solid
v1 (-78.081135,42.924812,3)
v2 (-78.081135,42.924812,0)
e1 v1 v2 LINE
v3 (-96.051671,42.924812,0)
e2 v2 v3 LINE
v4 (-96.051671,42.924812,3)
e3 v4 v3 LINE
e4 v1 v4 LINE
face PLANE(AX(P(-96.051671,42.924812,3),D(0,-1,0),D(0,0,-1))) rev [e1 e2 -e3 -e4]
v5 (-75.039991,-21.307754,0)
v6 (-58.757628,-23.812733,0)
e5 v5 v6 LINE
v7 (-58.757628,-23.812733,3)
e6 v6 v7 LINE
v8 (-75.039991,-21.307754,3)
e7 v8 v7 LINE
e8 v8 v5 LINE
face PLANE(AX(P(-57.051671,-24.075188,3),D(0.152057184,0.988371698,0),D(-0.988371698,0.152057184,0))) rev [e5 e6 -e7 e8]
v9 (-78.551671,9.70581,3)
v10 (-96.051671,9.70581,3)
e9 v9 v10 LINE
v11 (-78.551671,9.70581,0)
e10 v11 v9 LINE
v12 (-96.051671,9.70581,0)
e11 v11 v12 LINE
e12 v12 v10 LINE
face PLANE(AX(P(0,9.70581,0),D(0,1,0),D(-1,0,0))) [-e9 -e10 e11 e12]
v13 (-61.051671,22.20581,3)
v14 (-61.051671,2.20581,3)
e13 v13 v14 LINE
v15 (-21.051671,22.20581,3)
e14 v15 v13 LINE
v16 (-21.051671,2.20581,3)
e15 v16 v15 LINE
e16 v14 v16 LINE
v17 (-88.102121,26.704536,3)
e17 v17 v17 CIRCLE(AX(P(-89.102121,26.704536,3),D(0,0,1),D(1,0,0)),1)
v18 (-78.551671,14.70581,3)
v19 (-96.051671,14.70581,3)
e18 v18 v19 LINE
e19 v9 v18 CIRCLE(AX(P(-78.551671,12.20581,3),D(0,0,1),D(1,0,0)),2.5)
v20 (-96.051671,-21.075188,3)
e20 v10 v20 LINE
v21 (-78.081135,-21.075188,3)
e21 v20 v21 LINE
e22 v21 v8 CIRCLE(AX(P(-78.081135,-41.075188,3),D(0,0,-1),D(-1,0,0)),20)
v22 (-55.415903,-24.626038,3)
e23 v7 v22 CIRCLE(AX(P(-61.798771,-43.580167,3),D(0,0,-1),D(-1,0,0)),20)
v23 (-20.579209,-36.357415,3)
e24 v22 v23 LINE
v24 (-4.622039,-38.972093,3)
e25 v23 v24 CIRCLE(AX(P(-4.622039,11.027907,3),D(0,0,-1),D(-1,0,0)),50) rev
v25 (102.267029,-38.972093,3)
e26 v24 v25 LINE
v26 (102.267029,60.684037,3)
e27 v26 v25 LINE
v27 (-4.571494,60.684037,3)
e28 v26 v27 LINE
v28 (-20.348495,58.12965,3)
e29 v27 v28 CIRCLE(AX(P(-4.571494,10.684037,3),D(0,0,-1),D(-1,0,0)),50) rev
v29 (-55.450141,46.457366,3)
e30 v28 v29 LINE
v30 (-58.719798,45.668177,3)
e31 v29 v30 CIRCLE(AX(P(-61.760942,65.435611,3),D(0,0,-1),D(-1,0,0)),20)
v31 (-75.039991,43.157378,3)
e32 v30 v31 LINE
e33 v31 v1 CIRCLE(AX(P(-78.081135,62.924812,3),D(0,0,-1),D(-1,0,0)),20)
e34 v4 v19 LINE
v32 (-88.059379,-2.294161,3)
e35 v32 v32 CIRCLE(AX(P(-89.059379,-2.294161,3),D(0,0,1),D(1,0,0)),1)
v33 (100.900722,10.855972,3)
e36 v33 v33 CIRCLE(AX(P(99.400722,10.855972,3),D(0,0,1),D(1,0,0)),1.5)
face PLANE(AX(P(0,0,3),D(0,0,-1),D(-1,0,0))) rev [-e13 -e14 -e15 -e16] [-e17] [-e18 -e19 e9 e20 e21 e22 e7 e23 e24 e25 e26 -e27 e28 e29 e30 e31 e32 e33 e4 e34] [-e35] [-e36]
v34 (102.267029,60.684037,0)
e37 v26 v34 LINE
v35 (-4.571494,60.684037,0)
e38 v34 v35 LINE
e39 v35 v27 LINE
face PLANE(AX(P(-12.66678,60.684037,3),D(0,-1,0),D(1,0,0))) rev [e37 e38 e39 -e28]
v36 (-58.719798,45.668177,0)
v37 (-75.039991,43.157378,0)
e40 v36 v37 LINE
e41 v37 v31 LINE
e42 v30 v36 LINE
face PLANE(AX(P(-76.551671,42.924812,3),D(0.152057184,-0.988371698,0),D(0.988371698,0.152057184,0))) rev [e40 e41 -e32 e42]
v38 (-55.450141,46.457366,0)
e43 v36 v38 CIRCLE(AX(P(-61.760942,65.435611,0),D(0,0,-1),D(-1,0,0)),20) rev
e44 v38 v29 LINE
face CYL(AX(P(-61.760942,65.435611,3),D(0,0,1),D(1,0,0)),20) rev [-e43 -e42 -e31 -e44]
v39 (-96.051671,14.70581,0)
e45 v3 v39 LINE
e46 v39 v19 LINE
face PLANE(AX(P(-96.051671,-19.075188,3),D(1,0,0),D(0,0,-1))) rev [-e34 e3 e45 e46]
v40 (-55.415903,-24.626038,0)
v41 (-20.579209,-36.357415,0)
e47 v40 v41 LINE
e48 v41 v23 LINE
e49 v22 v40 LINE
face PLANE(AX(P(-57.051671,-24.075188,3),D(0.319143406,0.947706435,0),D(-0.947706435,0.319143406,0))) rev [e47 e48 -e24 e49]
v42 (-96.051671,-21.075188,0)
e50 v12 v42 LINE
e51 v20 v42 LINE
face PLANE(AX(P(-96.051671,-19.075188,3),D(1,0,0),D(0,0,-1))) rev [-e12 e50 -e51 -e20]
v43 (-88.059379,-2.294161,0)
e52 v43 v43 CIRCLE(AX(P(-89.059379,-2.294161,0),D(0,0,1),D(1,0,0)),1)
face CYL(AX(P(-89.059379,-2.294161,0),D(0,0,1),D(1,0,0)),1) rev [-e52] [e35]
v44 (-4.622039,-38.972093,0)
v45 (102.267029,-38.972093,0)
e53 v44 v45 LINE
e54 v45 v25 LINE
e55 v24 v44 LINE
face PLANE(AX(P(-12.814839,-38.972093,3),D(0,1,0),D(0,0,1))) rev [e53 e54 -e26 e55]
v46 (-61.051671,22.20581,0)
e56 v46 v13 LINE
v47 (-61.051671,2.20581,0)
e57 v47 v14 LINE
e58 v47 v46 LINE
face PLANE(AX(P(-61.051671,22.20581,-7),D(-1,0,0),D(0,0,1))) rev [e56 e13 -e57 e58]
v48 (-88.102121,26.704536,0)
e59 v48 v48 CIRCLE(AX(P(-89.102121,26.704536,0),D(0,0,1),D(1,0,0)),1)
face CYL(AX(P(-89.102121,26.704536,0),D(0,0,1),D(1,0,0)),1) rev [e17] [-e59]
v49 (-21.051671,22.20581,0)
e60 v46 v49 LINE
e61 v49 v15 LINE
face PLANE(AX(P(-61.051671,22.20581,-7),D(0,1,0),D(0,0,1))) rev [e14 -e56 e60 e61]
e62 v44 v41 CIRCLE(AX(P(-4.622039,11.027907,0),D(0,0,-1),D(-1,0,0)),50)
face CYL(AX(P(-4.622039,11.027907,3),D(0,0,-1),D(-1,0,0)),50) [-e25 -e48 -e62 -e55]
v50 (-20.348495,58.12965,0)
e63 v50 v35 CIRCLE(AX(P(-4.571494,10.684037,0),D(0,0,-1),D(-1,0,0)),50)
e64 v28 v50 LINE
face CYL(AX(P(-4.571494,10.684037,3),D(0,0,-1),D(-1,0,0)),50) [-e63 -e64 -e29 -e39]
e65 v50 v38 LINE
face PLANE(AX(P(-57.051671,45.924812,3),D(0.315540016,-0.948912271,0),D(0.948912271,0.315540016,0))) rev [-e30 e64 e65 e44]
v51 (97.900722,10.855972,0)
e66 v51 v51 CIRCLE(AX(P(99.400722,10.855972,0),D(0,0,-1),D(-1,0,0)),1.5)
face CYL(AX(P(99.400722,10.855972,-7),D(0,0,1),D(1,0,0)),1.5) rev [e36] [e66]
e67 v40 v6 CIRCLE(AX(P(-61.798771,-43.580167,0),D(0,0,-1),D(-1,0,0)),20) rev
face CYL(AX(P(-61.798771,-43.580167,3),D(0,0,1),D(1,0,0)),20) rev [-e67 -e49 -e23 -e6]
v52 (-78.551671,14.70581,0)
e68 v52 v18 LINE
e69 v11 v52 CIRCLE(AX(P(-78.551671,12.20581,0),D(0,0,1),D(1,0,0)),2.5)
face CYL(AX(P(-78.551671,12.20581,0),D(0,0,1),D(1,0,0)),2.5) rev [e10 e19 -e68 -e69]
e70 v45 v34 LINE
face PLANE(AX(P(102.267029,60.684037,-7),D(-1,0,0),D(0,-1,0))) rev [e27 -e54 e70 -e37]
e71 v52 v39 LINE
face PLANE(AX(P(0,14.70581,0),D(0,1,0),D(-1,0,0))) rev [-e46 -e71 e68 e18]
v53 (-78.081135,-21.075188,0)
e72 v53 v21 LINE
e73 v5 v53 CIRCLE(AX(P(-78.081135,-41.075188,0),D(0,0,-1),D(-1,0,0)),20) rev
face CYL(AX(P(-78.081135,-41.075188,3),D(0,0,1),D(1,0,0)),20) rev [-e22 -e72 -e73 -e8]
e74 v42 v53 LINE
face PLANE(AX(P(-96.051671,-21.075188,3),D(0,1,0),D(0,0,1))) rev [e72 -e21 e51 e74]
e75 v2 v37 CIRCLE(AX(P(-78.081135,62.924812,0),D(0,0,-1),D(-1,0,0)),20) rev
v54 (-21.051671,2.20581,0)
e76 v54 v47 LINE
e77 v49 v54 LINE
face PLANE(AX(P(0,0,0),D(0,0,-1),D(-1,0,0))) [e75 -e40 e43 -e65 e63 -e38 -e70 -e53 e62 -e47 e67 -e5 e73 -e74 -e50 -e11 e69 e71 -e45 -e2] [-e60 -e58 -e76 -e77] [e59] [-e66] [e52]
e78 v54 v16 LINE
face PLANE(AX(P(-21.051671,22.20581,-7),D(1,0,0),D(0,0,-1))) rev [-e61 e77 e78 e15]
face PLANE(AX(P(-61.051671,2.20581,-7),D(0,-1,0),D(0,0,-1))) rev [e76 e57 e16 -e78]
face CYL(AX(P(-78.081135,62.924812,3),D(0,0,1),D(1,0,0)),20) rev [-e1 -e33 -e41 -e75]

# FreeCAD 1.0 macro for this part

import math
import FreeCAD as App
import Part
import Sketcher

V = App.Vector
Q = App.Units.Quantity


def edges_at(feature, points):
    """Names of the edges that pass closest to the given points."""
    edges = feature.Shape.Edges
    near = lambda p: min(range(len(edges)), key=lambda i: edges[i].distToShape(Part.Vertex(*p))[0])
    return sorted({f"Edge{near(p) + 1}" for p in points})

doc = App.newDocument("Part")
body = doc.addObject("PartDesign::Body", "Body")

sketch1 = body.newObject("Sketcher::SketchObject", "Sketch")
sketch1.AttachmentSupport = (doc.getObject("XY_Plane"), [""])
sketch1.MapMode = "FlatFace"
sketch1.addGeometry([
    Part.LineSegment(V(130.267029, -38.972093, 0), V(130.267029, 60.684037, 0)),
    Part.LineSegment(V(130.267029, 60.684037, 0), V(-12.66678, 60.684037, 0)),
    Part.LineSegment(V(-12.66678, 60.684037, 0), V(-57.051671, 45.924812, 0)),
    Part.LineSegment(V(-57.051671, 45.924812, 0), V(-76.551671, 42.924812, 0)),
    Part.LineSegment(V(-76.551671, 42.924812, 0), V(-96.051671, 42.924812, 0)),
    Part.LineSegment(V(-96.051671, 42.924812, 0), V(-96.051671, -21.075188, 0)),
    Part.LineSegment(V(-96.051671, -21.075188, 0), V(-76.551671, -21.075188, 0)),
    Part.LineSegment(V(-76.551671, -21.075188, 0), V(-57.051671, -24.075188, 0)),
    Part.LineSegment(V(-57.051671, -24.075188, 0), V(-12.814839, -38.972093, 0)),
    Part.LineSegment(V(-12.814839, -38.972093, 0), V(130.267029, -38.972093, 0)),
], False)
sketch1.addConstraint([
    Sketcher.Constraint("Coincident", 0, 2, 1, 1),
    Sketcher.Constraint("Coincident", 1, 2, 2, 1),
    Sketcher.Constraint("Coincident", 2, 2, 3, 1),
    Sketcher.Constraint("Coincident", 3, 2, 4, 1),
    Sketcher.Constraint("Coincident", 4, 2, 5, 1),
    Sketcher.Constraint("Coincident", 5, 2, 6, 1),
    Sketcher.Constraint("Coincident", 6, 2, 7, 1),
    Sketcher.Constraint("Coincident", 7, 2, 8, 1),
    Sketcher.Constraint("Coincident", 8, 2, 9, 1),
    Sketcher.Constraint("Coincident", 9, 2, 0, 1),
    Sketcher.Constraint("Vertical", 0),
    Sketcher.Constraint("Horizontal", 1),
    Sketcher.Constraint("Horizontal", 4),
    Sketcher.Constraint("Vertical", 5),
    Sketcher.Constraint("Horizontal", 6),
    Sketcher.Constraint("Horizontal", 9),
    Sketcher.Constraint("Vertical", 3, 2, 6, 2),
    Sketcher.Constraint("Vertical", 2, 2, 7, 2),
    Sketcher.Constraint("Equal", 3, 7),
    Sketcher.Constraint("DistanceY", 5, 2, 5, 1, Q("64 mm")),
    Sketcher.Constraint("DistanceX", 4, 2, 4, 1, Q("19.5 mm")),
    Sketcher.Constraint("DistanceY", 3, 2, 2, 2, Q("3 mm")),
    Sketcher.Constraint("DistanceX", 4, 2, 2, 2, Q("39 mm")),
    Sketcher.Constraint("DistanceX", 1, 2, 1, 1, Q("142.933809 mm")),
    Sketcher.Constraint("DistanceX", 9, 1, 9, 2, Q("143.081869 mm")),
    Sketcher.Constraint("DistanceY", 0, 1, 0, 2, Q("99.65613 mm")),
    Sketcher.Constraint("DistanceX", 2, 2, 0, 2, Q("187.3187 mm")),
    Sketcher.Constraint("Distance", 8, Q("46.677779 mm")),
    Sketcher.Constraint("DistanceX", -1, 1, 0, 2, Q("130.267029 mm")),
    Sketcher.Constraint("DistanceY", -1, 1, 0, 2, Q("60.684037 mm")),
])
pad1 = body.newObject("PartDesign::Pad", "Pad")
pad1.Profile = sketch1
pad1.Length = 3
doc.recompute()

fillet = body.newObject("PartDesign::Fillet", "Fillet")
fillet.Base = (pad1, edges_at(pad1, [(-12.815, -38.972, 1.5), (-12.667, 60.684, 1.5)]))
fillet.Radius = 50
doc.recompute()

fillet2 = body.newObject("PartDesign::Fillet", "Fillet001")
fillet2.Base = (fillet, edges_at(fillet, [
    (-57.052, -24.075, 1.5),
    (-76.552, -21.075, 1.5),
    (-76.552, 42.925, 1.5),
    (-57.052, 45.925, 1.5),
]))
fillet2.Radius = 20

sketch2 = body.newObject("Sketcher::SketchObject", "Sketch001")
sketch2.AttachmentSupport = (doc.getObject("XY_Plane"), [""])
sketch2.MapMode = "FlatFace"
sketch2.AttachmentOffset = App.Placement(V(0, 0, 3), App.Rotation())
sketch2.addGeometry(Part.Circle(V(127.267029, 10.855972, 0), V(0, 0, 1), 1.000396), False)
sketch2.addConstraint([
    Sketcher.Constraint("Diameter", 0, Q("2.000793 mm")),
    Sketcher.Constraint("DistanceX", -1, 1, 0, 3, Q("127.267029 mm")),
    Sketcher.Constraint("DistanceY", -1, 1, 0, 3, Q("10.855972 mm")),
])
pocket1 = body.newObject("PartDesign::Pocket", "Pocket")
pocket1.Profile = sketch2
pocket1.Length = 3

sketch3 = body.newObject("Sketcher::SketchObject", "Sketch002")
sketch3.AttachmentSupport = (doc.getObject("XY_Plane"), [""])
sketch3.MapMode = "FlatFace"
sketch3.AttachmentOffset = App.Placement(V(0, 0, 3), App.Rotation())
sketch3.addGeometry([
    Part.LineSegment(V(-78.551671, 14.70581, 0), V(-96.051671, 14.70581, 0)),
    Part.LineSegment(V(-96.051671, 14.70581, 0), V(-96.051671, 9.70581, 0)),
    Part.LineSegment(V(-96.051671, 9.70581, 0), V(-78.551671, 9.70581, 0)),
    Part.ArcOfCircle(Part.Circle(V(-78.551671, 12.20581, 0), V(0, 0, 1), 2.5), math.radians(-90), math.radians(90)),
], False)
sketch3.addConstraint([
    Sketcher.Constraint("Coincident", 0, 2, 1, 1),
    Sketcher.Constraint("Coincident", 1, 2, 2, 1),
    Sketcher.Constraint("Tangent", 2, 2, 3, 1),
    Sketcher.Constraint("Tangent", 3, 2, 0, 1),
    Sketcher.Constraint("Horizontal", 0),
    Sketcher.Constraint("Vertical", 1),
    Sketcher.Constraint("Horizontal", 2),
    Sketcher.Constraint("Radius", 3, Q("2.5 mm")),
    Sketcher.Constraint("DistanceX", 0, 2, 0, 1, Q("17.5 mm")),
    Sketcher.Constraint("DistanceX", 3, 3, -1, 1, Q("78.551671 mm")),
    Sketcher.Constraint("DistanceY", -1, 1, 3, 3, Q("12.20581 mm")),
])
pocket2 = body.newObject("PartDesign::Pocket", "Pocket001")
pocket2.Profile = sketch3
pocket2.Length = 3

sketch4 = body.newObject("Sketcher::SketchObject", "Sketch003")
sketch4.AttachmentSupport = (doc.getObject("XY_Plane"), [""])
sketch4.MapMode = "FlatFace"
sketch4.AttachmentOffset = App.Placement(V(0, 0, 3), App.Rotation())
sketch4.addGeometry([
    Part.Circle(V(-89.059379, -2.294161, 0), V(0, 0, 1), 1),
    Part.Circle(V(-89.102121, 26.704536, 0), V(0, 0, 1), 1),
], False)
sketch4.addConstraint([
    Sketcher.Constraint("Equal", 0, 1),
    Sketcher.Constraint("Diameter", 0, Q("2 mm")),
    Sketcher.Constraint("DistanceX", 0, 3, -1, 1, Q("89.059379 mm")),
    Sketcher.Constraint("DistanceY", 0, 3, -1, 1, Q("2.294161 mm")),
    Sketcher.Constraint("DistanceX", 1, 3, -1, 1, Q("89.102121 mm")),
    Sketcher.Constraint("DistanceY", -1, 1, 1, 3, Q("26.704536 mm")),
])
pocket3 = body.newObject("PartDesign::Pocket", "Pocket002")
pocket3.Profile = sketch4
pocket3.Length = 3

sketch5 = body.newObject("Sketcher::SketchObject", "Sketch004")
sketch5.AttachmentSupport = (doc.getObject("XY_Plane"), [""])
sketch5.MapMode = "FlatFace"
sketch5.AttachmentOffset = App.Placement(V(0, 0, 3), App.Rotation())
sketch5.addGeometry([
    Part.LineSegment(V(102.267029, 60.684037, 0), V(102.267029, -38.972093, 0)),
    Part.LineSegment(V(102.267029, -38.972093, 0), V(130.267029, -38.972093, 0)),
    Part.LineSegment(V(130.267029, -38.972093, 0), V(130.267029, 60.684037, 0)),
    Part.LineSegment(V(130.267029, 60.684037, 0), V(102.267029, 60.684037, 0)),
], False)
sketch5.addConstraint([
    Sketcher.Constraint("Coincident", 0, 2, 1, 1),
    Sketcher.Constraint("Coincident", 1, 2, 2, 1),
    Sketcher.Constraint("Coincident", 2, 2, 3, 1),
    Sketcher.Constraint("Coincident", 3, 2, 0, 1),
    Sketcher.Constraint("Vertical", 0),
    Sketcher.Constraint("Horizontal", 1),
    Sketcher.Constraint("Vertical", 2),
    Sketcher.Constraint("Horizontal", 3),
    Sketcher.Constraint("DistanceX", 1, 1, 1, 2, Q("28 mm")),
    Sketcher.Constraint("DistanceY", 0, 2, 0, 1, Q("99.65613 mm")),
    Sketcher.Constraint("DistanceX", -1, 1, 0, 2, Q("102.267029 mm")),
    Sketcher.Constraint("DistanceY", 0, 2, -1, 1, Q("38.972093 mm")),
])
pocket4 = body.newObject("PartDesign::Pocket", "Pocket003")
pocket4.Profile = sketch5
pocket4.Length = 10

sketch6 = body.newObject("Sketcher::SketchObject", "Sketch005")
sketch6.AttachmentSupport = (doc.getObject("XY_Plane"), [""])
sketch6.MapMode = "FlatFace"
sketch6.AttachmentOffset = App.Placement(V(0, 0, 3), App.Rotation())
sketch6.addGeometry(Part.Circle(V(99.400722, 10.855972, 0), V(0, 0, 1), 1.5), False)
sketch6.addConstraint([
    Sketcher.Constraint("Diameter", 0, Q("3 mm")),
    Sketcher.Constraint("DistanceX", -1, 1, 0, 3, Q("99.400722 mm")),
    Sketcher.Constraint("DistanceY", -1, 1, 0, 3, Q("10.855972 mm")),
])
pocket5 = body.newObject("PartDesign::Pocket", "Pocket004")
pocket5.Profile = sketch6
pocket5.Length = 10

sketch7 = body.newObject("Sketcher::SketchObject", "Sketch006")
sketch7.AttachmentSupport = (doc.getObject("XY_Plane"), [""])
sketch7.MapMode = "FlatFace"
sketch7.AttachmentOffset = App.Placement(V(0, 0, 3), App.Rotation())
sketch7.addGeometry([
    Part.LineSegment(V(-61.051671, 22.20581, 0), V(-61.051671, 2.20581, 0)),
    Part.LineSegment(V(-61.051671, 2.20581, 0), V(-21.051671, 2.20581, 0)),
    Part.LineSegment(V(-21.051671, 2.20581, 0), V(-21.051671, 22.20581, 0)),
    Part.LineSegment(V(-21.051671, 22.20581, 0), V(-61.051671, 22.20581, 0)),
], False)
sketch7.addConstraint([
    Sketcher.Constraint("Coincident", 0, 2, 1, 1),
    Sketcher.Constraint("Coincident", 1, 2, 2, 1),
    Sketcher.Constraint("Coincident", 2, 2, 3, 1),
    Sketcher.Constraint("Coincident", 3, 2, 0, 1),
    Sketcher.Constraint("Vertical", 0),
    Sketcher.Constraint("Horizontal", 1),
    Sketcher.Constraint("Vertical", 2),
    Sketcher.Constraint("Horizontal", 3),
    Sketcher.Constraint("DistanceX", 1, 1, 1, 2, Q("40 mm")),
    Sketcher.Constraint("DistanceY", 0, 2, 0, 1, Q("20 mm")),
    Sketcher.Constraint("DistanceX", 0, 2, -1, 1, Q("61.051671 mm")),
    Sketcher.Constraint("DistanceY", -1, 1, 0, 2, Q("2.20581 mm")),
])
pocket6 = body.newObject("PartDesign::Pocket", "Pocket005")
pocket6.Profile = sketch7
pocket6.Length = 10

doc.recompute()
